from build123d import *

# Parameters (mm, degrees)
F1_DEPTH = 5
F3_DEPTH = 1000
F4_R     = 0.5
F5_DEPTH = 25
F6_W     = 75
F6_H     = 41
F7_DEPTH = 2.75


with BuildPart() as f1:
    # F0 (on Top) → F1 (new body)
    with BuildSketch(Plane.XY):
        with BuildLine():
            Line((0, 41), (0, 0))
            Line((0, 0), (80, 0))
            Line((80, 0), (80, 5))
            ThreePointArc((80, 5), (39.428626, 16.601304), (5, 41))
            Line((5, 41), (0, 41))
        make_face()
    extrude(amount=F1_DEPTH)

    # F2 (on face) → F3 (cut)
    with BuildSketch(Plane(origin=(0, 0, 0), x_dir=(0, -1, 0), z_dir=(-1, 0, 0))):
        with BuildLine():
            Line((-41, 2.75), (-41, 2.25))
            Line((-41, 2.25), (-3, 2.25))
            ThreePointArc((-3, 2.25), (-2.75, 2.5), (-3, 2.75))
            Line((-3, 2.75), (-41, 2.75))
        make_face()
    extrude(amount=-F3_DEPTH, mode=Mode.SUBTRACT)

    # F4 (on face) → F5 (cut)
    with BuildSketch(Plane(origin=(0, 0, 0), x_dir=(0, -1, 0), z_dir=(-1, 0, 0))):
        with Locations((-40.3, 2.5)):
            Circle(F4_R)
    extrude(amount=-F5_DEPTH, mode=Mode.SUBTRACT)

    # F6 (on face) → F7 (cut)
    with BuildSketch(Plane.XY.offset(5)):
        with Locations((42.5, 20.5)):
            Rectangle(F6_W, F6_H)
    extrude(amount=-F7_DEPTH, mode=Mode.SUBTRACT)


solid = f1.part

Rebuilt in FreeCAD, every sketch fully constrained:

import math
import FreeCAD as App
import Part
import Sketcher
Q = App.Units.Quantity


def add_polygon(sketch, points):
    """Adds a closed chain of lines whose ends are joined by coincident constraints."""
    first, n = sketch.GeometryCount, len(points)
    for a, b in zip(points, points[1:] + points[:1]):
        sketch.addGeometry(Part.LineSegment(App.Vector(*a, 0), App.Vector(*b, 0)), False)
    for i in range(n):
        sketch.addConstraint(Sketcher.Constraint("Coincident", first + i, 2, first + (i + 1) % n, 1))

doc = App.newDocument("Part")
body = doc.addObject("PartDesign::Body", "Body")

sketch1 = doc.addObject("Sketcher::SketchObject", "Sketch")
body.addObject(sketch1)
sketch1.AttachmentSupport = (doc.XY_Plane, [""])
sketch1.MapMode = "FlatFace"
sketch1.addGeometry([
    Part.LineSegment(App.Vector(0, 41, 0), App.Vector(0, 0, 0)),
    Part.LineSegment(App.Vector(0, 0, 0), App.Vector(80, 0, 0)),
    Part.LineSegment(App.Vector(80, 0, 0), App.Vector(80, 5, 0)),
    Part.ArcOfCircle(Part.Circle(App.Vector(94, 130, 0), App.Vector(0, 0, 1), 125), math.radians(-135), math.radians(-96)),
    Part.LineSegment(App.Vector(5, 41, 0), App.Vector(0, 41, 0)),
], False)
sketch1.addConstraint([
    Sketcher.Constraint("Coincident", 0, 2, 1, 1),
    Sketcher.Constraint("Coincident", 1, 2, 2, 1),
    Sketcher.Constraint("Coincident", 2, 2, 3, 2),
    Sketcher.Constraint("Coincident", 3, 1, 4, 1),
    Sketcher.Constraint("Coincident", 4, 2, 0, 1),
    Sketcher.Constraint("Vertical", 0),
    Sketcher.Constraint("Horizontal", 1),
    Sketcher.Constraint("Vertical", 2),
    Sketcher.Constraint("Horizontal", 4),
    Sketcher.Constraint("Coincident", 0, 2, -1, 1),
    Sketcher.Constraint("Equal", 4, 2),
    Sketcher.Constraint("DistanceX", 1, 1, 1, 2, Q("80 mm")),
    Sketcher.Constraint("DistanceX", 4, 2, 4, 1, Q("5 mm")),
    Sketcher.Constraint("DistanceY", 0, 2, 0, 1, Q("41 mm")),
    Sketcher.Constraint("Radius", 3, Q("125.437745 mm")),
])
pad1 = doc.addObject("PartDesign::Pad", "Pad")
body.addObject(pad1)
pad1.Profile = sketch1
pad1.Length = 5

sketch2 = doc.addObject("Sketcher::SketchObject", "Sketch001")
body.addObject(sketch2)
sketch2.AttachmentSupport = (doc.YZ_Plane, [""])
sketch2.MapMode = "FlatFace"
sketch2.addGeometry([
    Part.LineSegment(App.Vector(41, 2.75, 0), App.Vector(41, 2.25, 0)),
    Part.LineSegment(App.Vector(41, 2.25, 0), App.Vector(3, 2.25, 0)),
    Part.ArcOfCircle(Part.Circle(App.Vector(3, 2.5, 0), App.Vector(0, 0, 1), 0.25), math.radians(90), math.radians(270)),
    Part.LineSegment(App.Vector(3, 2.75, 0), App.Vector(41, 2.75, 0)),
], False)
sketch2.addConstraint([
    Sketcher.Constraint("Coincident", 0, 2, 1, 1),
    Sketcher.Constraint("Tangent", 1, 2, 2, 2),
    Sketcher.Constraint("Tangent", 2, 1, 3, 1),
    Sketcher.Constraint("Coincident", 3, 2, 0, 1),
    Sketcher.Constraint("Vertical", 0),
    Sketcher.Constraint("Horizontal", 1),
    Sketcher.Constraint("Horizontal", 3),
    Sketcher.Constraint("DistanceX", 1, 2, 1, 1, Q("38 mm")),
    Sketcher.Constraint("Radius", 2, Q("0.25 mm")),
    Sketcher.Constraint("DistanceX", -1, 1, 2, 3, Q("3 mm")),
    Sketcher.Constraint("DistanceY", -1, 1, 2, 3, Q("2.5 mm")),
])
pocket1 = doc.addObject("PartDesign::Pocket", "Pocket")
body.addObject(pocket1)
pocket1.Profile = sketch2
pocket1.Length = 1000
pocket1.Reversed = True

sketch3 = doc.addObject("Sketcher::SketchObject", "Sketch002")
body.addObject(sketch3)
sketch3.AttachmentSupport = (doc.YZ_Plane, [""])
sketch3.MapMode = "FlatFace"
sketch3.addGeometry(Part.Circle(App.Vector(40.3, 2.5, 0), App.Vector(0, 0, 1), 0.5), False)
sketch3.addConstraint([
    Sketcher.Constraint("Diameter", 0, Q("1 mm")),
    Sketcher.Constraint("DistanceX", -1, 1, 0, 3, Q("40.3 mm")),
    Sketcher.Constraint("DistanceY", -1, 1, 0, 3, Q("2.5 mm")),
])
pocket2 = doc.addObject("PartDesign::Pocket", "Pocket001")
body.addObject(pocket2)
pocket2.Profile = sketch3
pocket2.Length = 25
pocket2.Reversed = True

sketch4 = doc.addObject("Sketcher::SketchObject", "Sketch003")
body.addObject(sketch4)
sketch4.AttachmentSupport = (doc.XY_Plane, [""])
sketch4.MapMode = "FlatFace"
sketch4.AttachmentOffset = App.Placement(App.Vector(0, 0, 5), App.Rotation())
add_polygon(sketch4, [(5, 41), (5, 0), (80, 0), (80, 41)])
sketch4.addConstraint([
    Sketcher.Constraint("Vertical", 0),
    Sketcher.Constraint("Horizontal", 1),
    Sketcher.Constraint("Vertical", 2),
    Sketcher.Constraint("Horizontal", 3),
    Sketcher.Constraint("PointOnObject", 0, 2, -1),
    Sketcher.Constraint("DistanceX", 1, 1, 1, 2, Q("75 mm")),
    Sketcher.Constraint("DistanceY", 0, 2, 0, 1, Q("41 mm")),
    Sketcher.Constraint("DistanceX", -1, 1, 0, 2, Q("5 mm")),
])
pocket3 = doc.addObject("PartDesign::Pocket", "Pocket002")
body.addObject(pocket3)
pocket3.Profile = sketch4
pocket3.Length = 2.75

doc.recompute()
